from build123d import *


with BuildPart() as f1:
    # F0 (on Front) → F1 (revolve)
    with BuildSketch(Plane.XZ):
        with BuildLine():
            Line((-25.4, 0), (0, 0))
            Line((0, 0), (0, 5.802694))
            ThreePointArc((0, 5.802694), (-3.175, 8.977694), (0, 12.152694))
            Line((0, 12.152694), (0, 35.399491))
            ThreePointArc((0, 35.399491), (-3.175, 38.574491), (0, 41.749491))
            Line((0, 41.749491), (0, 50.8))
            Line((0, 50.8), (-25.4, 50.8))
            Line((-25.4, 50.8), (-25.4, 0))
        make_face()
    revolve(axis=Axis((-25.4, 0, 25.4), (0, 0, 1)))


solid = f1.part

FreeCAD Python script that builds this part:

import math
import FreeCAD as App
import Part
import Sketcher

V = App.Vector
Q = App.Units.Quantity

doc = App.newDocument("Part")
body = doc.addObject("PartDesign::Body", "Body")

sketch1 = body.newObject("Sketcher::SketchObject", "Sketch")
sketch1.AttachmentSupport = (doc.getObject("XZ_Plane"), [""])
sketch1.MapMode = "FlatFace"
sketch1.addGeometry([
    Part.LineSegment(V(-25.4, 0, 0), V(0, 0, 0)),
    Part.LineSegment(V(0, 0, 0), V(0, 5.8, 0)),
    Part.ArcOfCircle(Part.Circle(V(0, 9, 0), V(0, 0, 1), 3.2), math.radians(90), math.radians(270)),
    Part.LineSegment(V(0, 12.2, 0), V(0, 35.4, 0)),
    Part.ArcOfCircle(Part.Circle(V(0, 38.6, 0), V(0, 0, 1), 3.2), math.radians(90), math.radians(270)),
    Part.LineSegment(V(0, 41.7, 0), V(0, 50.8, 0)),
    Part.LineSegment(V(0, 50.8, 0), V(-25.4, 50.8, 0)),
    Part.LineSegment(V(-25.4, 50.8, 0), V(-25.4, 0, 0)),
], False)
sketch1.addGeometry(Part.LineSegment(V(-25.4, 0, 0), V(-25.4, 50.8, 0)), True)
sketch1.addConstraint([
    Sketcher.Constraint("Coincident", 0, 2, 1, 1),
    Sketcher.Constraint("Coincident", 1, 2, 2, 2),
    Sketcher.Constraint("Coincident", 2, 1, 3, 1),
    Sketcher.Constraint("Coincident", 3, 2, 4, 2),
    Sketcher.Constraint("Coincident", 4, 1, 5, 1),
    Sketcher.Constraint("Coincident", 5, 2, 6, 1),
    Sketcher.Constraint("Coincident", 6, 2, 7, 1),
    Sketcher.Constraint("Coincident", 7, 2, 0, 1),
    Sketcher.Constraint("Horizontal", 0),
    Sketcher.Constraint("Vertical", 1),
    Sketcher.Constraint("Vertical", 3),
    Sketcher.Constraint("Vertical", 5),
    Sketcher.Constraint("Horizontal", 6),
    Sketcher.Constraint("Vertical", 7),
    Sketcher.Constraint("Vertical", 8),
    Sketcher.Constraint("Coincident", 0, 2, -1, 1),
    Sketcher.Constraint("Coincident", 8, 1, 7, 2),
    Sketcher.Constraint("Equal", 2, 4),
    Sketcher.Constraint("PointOnObject", 2, 3, -2),
    Sketcher.Constraint("PointOnObject", 4, 3, -2),
    Sketcher.Constraint("PointOnObject", 2, 1, -2),
    Sketcher.Constraint("PointOnObject", 4, 1, -2),
    Sketcher.Constraint("Horizontal", 5, 2, 8, 2),
    Sketcher.Constraint("DistanceX", 0, 1, 0, 2, Q("1 in")),
    Sketcher.Constraint("DistanceY", 7, 2, 7, 1, Q("2 in")),
    Sketcher.Constraint("Radius", 2, Q("0.125 in")),
    Sketcher.Constraint("DistanceY", 5, 1, 5, 2, Q("9.050509 mm")),
    Sketcher.Constraint("DistanceY", 1, 1, 1, 2, Q("5.802694 mm")),
])
revolution = body.newObject("PartDesign::Revolution", "Revolution")
revolution.Profile = sketch1
revolution.ReferenceAxis = (sketch1, ["Axis0"])
revolution.Angle = 360

doc.recompute()
